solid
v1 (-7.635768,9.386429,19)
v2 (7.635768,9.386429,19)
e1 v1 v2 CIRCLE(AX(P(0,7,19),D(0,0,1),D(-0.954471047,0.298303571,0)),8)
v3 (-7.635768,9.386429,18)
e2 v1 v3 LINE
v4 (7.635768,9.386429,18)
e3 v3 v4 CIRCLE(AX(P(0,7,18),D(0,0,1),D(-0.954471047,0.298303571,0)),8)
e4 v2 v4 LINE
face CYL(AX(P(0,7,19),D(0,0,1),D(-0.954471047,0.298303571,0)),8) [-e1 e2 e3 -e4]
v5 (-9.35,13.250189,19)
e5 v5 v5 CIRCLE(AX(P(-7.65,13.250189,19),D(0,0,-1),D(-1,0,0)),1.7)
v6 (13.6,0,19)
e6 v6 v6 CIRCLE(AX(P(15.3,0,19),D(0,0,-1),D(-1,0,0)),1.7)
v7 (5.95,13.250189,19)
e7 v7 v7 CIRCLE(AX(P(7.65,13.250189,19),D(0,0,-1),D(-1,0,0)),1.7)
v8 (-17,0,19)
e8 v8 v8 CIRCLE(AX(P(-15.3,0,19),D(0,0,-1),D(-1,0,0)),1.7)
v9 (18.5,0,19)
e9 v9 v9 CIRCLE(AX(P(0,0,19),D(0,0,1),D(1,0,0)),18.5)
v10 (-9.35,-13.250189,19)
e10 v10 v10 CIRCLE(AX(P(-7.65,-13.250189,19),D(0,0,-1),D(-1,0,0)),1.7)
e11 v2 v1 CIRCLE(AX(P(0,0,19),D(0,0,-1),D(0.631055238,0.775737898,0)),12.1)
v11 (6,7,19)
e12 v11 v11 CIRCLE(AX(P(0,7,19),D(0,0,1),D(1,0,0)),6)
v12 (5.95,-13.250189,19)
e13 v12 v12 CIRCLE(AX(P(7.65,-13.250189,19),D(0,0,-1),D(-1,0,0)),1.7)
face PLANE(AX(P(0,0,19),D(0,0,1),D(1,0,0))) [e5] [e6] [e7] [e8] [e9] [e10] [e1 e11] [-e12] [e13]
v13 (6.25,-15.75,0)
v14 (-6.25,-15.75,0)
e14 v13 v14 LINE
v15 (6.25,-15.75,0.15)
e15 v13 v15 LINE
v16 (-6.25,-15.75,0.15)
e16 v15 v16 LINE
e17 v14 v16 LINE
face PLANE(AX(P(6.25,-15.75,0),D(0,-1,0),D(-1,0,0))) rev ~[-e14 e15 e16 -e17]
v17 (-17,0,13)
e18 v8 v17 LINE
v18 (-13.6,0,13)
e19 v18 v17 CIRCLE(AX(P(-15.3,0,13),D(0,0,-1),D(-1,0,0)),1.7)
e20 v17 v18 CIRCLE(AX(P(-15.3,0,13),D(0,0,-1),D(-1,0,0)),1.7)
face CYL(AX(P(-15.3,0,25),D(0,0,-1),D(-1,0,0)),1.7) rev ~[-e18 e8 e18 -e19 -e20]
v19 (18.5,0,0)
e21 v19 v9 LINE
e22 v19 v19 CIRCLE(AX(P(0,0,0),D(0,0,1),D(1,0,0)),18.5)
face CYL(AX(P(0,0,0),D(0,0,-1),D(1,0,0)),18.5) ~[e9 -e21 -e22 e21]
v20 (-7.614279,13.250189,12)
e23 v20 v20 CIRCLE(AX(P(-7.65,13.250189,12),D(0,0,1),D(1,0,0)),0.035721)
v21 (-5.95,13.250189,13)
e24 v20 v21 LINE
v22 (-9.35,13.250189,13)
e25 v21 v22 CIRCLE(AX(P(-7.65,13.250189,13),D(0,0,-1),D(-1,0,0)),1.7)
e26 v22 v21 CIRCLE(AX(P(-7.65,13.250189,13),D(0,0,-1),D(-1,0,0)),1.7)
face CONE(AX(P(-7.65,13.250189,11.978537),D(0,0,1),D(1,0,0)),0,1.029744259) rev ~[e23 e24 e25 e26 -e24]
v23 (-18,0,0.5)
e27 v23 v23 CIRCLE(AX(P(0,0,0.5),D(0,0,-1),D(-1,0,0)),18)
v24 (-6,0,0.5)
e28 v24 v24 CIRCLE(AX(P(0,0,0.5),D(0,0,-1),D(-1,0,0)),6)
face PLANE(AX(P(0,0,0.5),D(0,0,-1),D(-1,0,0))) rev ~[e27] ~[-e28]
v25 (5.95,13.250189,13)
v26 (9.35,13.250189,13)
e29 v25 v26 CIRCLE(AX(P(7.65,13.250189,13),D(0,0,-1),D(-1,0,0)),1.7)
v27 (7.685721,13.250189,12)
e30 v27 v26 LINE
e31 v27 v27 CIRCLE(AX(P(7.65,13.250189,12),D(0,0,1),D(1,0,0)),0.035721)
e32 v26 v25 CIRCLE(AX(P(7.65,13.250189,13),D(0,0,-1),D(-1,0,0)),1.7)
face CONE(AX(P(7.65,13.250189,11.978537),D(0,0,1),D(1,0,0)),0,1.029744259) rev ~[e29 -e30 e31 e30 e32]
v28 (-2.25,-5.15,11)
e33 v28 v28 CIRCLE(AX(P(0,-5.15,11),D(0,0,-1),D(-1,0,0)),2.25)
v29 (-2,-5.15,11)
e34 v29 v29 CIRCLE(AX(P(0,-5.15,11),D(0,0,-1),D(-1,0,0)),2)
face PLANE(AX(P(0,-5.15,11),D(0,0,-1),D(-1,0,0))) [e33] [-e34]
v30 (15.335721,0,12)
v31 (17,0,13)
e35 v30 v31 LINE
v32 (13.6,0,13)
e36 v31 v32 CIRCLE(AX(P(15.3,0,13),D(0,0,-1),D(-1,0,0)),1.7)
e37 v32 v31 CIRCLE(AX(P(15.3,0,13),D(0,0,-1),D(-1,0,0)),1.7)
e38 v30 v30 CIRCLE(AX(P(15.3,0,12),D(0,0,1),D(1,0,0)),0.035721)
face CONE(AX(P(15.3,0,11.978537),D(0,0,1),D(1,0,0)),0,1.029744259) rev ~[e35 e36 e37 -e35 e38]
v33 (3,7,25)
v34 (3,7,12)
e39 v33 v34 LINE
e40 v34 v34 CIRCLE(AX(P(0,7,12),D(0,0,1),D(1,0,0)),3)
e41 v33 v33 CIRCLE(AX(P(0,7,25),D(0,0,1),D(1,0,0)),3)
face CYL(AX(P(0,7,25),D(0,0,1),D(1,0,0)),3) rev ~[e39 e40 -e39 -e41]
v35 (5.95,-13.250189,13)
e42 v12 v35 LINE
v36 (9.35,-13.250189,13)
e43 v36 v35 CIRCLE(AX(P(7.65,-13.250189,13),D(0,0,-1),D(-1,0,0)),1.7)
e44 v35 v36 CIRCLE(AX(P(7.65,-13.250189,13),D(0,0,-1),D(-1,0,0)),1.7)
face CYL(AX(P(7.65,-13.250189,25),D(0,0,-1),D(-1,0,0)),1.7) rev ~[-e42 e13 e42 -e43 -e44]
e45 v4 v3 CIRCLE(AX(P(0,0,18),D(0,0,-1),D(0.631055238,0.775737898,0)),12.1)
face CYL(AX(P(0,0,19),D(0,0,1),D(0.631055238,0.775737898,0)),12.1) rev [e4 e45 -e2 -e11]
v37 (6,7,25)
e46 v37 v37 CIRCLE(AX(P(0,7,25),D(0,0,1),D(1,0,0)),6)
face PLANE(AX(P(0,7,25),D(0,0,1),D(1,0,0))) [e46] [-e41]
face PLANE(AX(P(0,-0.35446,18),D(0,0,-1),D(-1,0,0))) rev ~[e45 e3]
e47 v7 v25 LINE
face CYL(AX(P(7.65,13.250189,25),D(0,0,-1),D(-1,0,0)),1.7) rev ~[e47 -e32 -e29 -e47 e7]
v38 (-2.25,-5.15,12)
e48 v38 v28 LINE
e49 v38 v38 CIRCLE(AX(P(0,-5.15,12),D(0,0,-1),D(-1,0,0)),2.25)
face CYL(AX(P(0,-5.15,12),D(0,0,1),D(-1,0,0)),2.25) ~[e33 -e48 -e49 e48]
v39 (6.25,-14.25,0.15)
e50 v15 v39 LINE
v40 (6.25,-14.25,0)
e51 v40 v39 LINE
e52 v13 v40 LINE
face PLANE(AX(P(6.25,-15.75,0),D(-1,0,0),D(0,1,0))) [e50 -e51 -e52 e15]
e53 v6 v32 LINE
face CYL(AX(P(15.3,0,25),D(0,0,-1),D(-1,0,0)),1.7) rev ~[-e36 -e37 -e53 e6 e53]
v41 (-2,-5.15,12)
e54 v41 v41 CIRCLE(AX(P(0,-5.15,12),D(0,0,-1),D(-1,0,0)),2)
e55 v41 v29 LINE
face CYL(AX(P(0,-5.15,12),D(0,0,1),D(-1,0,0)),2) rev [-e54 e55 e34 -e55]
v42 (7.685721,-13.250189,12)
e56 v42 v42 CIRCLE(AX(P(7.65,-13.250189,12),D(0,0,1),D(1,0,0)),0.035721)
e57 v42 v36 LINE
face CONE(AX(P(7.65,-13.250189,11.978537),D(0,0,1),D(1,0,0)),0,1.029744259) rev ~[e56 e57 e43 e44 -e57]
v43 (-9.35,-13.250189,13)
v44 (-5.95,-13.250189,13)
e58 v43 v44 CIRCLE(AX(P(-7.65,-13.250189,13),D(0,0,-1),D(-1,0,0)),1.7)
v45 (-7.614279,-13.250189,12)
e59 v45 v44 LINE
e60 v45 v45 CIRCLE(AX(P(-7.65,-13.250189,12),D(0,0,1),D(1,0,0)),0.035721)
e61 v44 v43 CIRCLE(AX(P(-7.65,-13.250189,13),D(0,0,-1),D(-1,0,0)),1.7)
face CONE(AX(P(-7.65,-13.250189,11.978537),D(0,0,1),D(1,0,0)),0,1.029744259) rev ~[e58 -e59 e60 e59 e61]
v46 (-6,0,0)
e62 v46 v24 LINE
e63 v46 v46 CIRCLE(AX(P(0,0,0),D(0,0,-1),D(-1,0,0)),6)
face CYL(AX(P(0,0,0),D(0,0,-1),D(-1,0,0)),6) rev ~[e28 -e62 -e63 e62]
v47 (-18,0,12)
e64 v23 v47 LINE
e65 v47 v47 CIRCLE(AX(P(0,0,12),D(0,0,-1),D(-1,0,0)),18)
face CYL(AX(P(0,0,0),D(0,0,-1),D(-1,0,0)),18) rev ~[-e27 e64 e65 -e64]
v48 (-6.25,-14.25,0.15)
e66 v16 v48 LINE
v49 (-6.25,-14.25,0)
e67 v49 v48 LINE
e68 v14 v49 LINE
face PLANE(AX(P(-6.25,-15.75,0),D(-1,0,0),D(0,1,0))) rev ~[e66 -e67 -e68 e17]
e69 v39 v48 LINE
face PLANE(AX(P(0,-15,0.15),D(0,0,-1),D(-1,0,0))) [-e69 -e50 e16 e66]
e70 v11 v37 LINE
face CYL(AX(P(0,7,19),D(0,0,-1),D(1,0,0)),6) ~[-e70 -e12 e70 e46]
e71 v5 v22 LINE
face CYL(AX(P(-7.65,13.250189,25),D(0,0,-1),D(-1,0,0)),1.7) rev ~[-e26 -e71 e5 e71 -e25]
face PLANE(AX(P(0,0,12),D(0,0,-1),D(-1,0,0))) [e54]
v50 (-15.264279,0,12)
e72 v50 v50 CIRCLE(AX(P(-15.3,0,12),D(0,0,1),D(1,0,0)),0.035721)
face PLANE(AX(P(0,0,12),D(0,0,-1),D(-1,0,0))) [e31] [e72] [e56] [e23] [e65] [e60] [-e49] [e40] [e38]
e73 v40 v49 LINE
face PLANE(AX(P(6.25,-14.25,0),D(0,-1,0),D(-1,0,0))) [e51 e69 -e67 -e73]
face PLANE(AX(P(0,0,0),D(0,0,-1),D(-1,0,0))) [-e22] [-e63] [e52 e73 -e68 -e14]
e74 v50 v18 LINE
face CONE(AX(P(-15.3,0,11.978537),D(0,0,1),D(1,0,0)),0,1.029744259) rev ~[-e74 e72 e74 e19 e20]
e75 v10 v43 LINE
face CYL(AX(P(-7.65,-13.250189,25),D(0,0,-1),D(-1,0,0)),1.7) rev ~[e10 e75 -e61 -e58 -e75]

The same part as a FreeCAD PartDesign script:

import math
import FreeCAD as App
import Part
import Sketcher
from FreeCAD import Vector


def add_polygon(sketch, points):
    """Adds a closed chain of lines whose ends are joined by coincident constraints."""
    first, n = sketch.GeometryCount, len(points)
    for a, b in zip(points, points[1:] + points[:1]):
        sketch.addGeometry(Part.LineSegment(App.Vector(*a, 0), App.Vector(*b, 0)), False)
    for i in range(n):
        sketch.addConstraint(Sketcher.Constraint("Coincident", first + i, 2, first + (i + 1) % n, 1))

doc = App.newDocument("Part")
params = doc.addObject("Spreadsheet::Sheet", "Params")
for row, (alias, value) in enumerate([
    ("sketch1_diameter", "37 mm"),
    ("pad1_length", "19 mm"),
    ("sketch2_diameter", "12 mm"),
    ("pad2_length", "6 mm"),
    ("sketch3_radius", "8 mm"),
    ("sketch3_radius2", "12.1 mm"),
    ("pocket1_length", "1 mm"),
    ("sketch4_diameter", "3.4 mm"),
    ("hole_diameter", "3.4 mm"),
    ("hole_depth", "6 mm"),
    ("sketch5_diameter", "36 mm"),
    ("pocket2_length", "12 mm"),
    ("sketch6_diameter", "6 mm"),
    ("sketch7_diameter", "36 mm"),
    ("pad3_length", "0.5 mm"),
    ("sketch8_diameter", "4 mm"),
    ("pocket4_length", "10 mm"),
    ("sketch9_width", "12.5 mm"),
    ("sketch9_height", "1.5 mm"),
    ("pocket5_length", "0.15 mm"),
    ("sketch10_diameter", "12 mm"),
    ("pocket6_length", "10 mm"),
    ("sketch11_diameter", "4 mm"),
    ("sketch11_diameter2", "4.5 mm"),
    ("pad4_length", "1 mm"),
], start=1):
    params.set(f"A{row}", alias)
    params.set(f"B{row}", "=" + value)
    params.setAlias(f"B{row}", alias)

body = doc.addObject("PartDesign::Body", "Body")

sketch1 = body.newObject("Sketcher::SketchObject", "Sketch")
sketch1.AttachmentSupport = (doc.getObject("XY_Plane"), [""])
sketch1.MapMode = "FlatFace"
sketch1.addGeometry(Part.Circle(Vector(0, 0, 0), Vector(0, 0, 1), 18), False)
sketch1.addConstraint(Sketcher.Constraint("Coincident", 0, 3, -1, 1))
sketch1.addConstraint(Sketcher.Constraint("Diameter", 0, 37.0))
sketch1.setExpression("Constraints[1]", "Params.sketch1_diameter")
pad1 = body.newObject("PartDesign::Pad", "Pad")
pad1.Profile = sketch1
pad1.setExpression("Length", "Params.pad1_length")

sketch2 = body.newObject("Sketcher::SketchObject", "Sketch001")
sketch2.AttachmentSupport = (doc.getObject("XY_Plane"), [""])
sketch2.MapMode = "FlatFace"
sketch2.AttachmentOffset = App.Placement(Vector(0, 0, 19), App.Rotation())
sketch2.addGeometry(Part.Circle(Vector(0, 7, 0), Vector(0, 0, 1), 6), False)
sketch2.addConstraint(Sketcher.Constraint("PointOnObject", 0, 3, -2))
sketch2.addConstraint(Sketcher.Constraint("Diameter", 0, 12.0))
sketch2.addConstraint(Sketcher.Constraint("DistanceY", -1, 1, 0, 3, 7.0))
sketch2.setExpression("Constraints[1]", "Params.sketch2_diameter")
pad2 = body.newObject("PartDesign::Pad", "Pad001")
pad2.Profile = sketch2
pad2.setExpression("Length", "Params.pad2_length")

sketch3 = body.newObject("Sketcher::SketchObject", "Sketch002")
sketch3.AttachmentSupport = (doc.getObject("XY_Plane"), [""])
sketch3.MapMode = "FlatFace"
sketch3.AttachmentOffset = App.Placement(Vector(0, 0, 19), App.Rotation())
sketch3.addGeometry(Part.ArcOfCircle(Part.Circle(Vector(0, 0, 0), Vector(0, 0, 1), 12), math.radians(129), math.radians(411)), False)
sketch3.addGeometry(Part.ArcOfCircle(Part.Circle(Vector(0, 7, 0), Vector(0, 0, 1), 8), math.radians(163), math.radians(377)), False)
sketch3.addConstraint(Sketcher.Constraint("Coincident", 0, 1, 1, 1))
sketch3.addConstraint(Sketcher.Constraint("Coincident", 1, 2, 0, 2))
sketch3.addConstraint(Sketcher.Constraint("Coincident", 0, 3, -1, 1))
sketch3.addConstraint(Sketcher.Constraint("PointOnObject", 1, 3, -2))
sketch3.addConstraint(Sketcher.Constraint("Radius", 1, 8.0))
sketch3.addConstraint(Sketcher.Constraint("Radius", 0, 12.1))
sketch3.addConstraint(Sketcher.Constraint("DistanceY", -1, 1, 1, 3, 7.0))
sketch3.setExpression("Constraints[4]", "Params.sketch3_radius")
sketch3.setExpression("Constraints[5]", "Params.sketch3_radius2")
pocket1 = body.newObject("PartDesign::Pocket", "Pocket")
pocket1.Profile = sketch3
pocket1.setExpression("Length", "Params.pocket1_length")

sketch4 = body.newObject("Sketcher::SketchObject", "Sketch003")
sketch4.AttachmentSupport = (doc.getObject("XY_Plane"), [""])
sketch4.MapMode = "FlatFace"
sketch4.AttachmentOffset = App.Placement(Vector(0, 0, 19), App.Rotation())
sketch4.addGeometry(Part.Circle(Vector(7.7, -13.3, 0), Vector(0, 0, 1), 1.7), False)
sketch4.addGeometry(Part.Circle(Vector(-7.7, -13.3, 0), Vector(0, 0, 1), 1.7), False)
sketch4.addGeometry(Part.Circle(Vector(-15.3, 0, 0), Vector(0, 0, 1), 1.7), False)
sketch4.addGeometry(Part.Circle(Vector(-7.7, 13.3, 0), Vector(0, 0, 1), 1.7), False)
sketch4.addGeometry(Part.Circle(Vector(15.3, 0, 0), Vector(0, 0, 1), 1.7), False)
sketch4.addGeometry(Part.Circle(Vector(7.7, 13.3, 0), Vector(0, 0, 1), 1.7), False)
sketch4.addConstraint(Sketcher.Constraint("Equal", 0, 1))
sketch4.addConstraint(Sketcher.Constraint("Equal", 1, 2))
sketch4.addConstraint(Sketcher.Constraint("Equal", 2, 3))
sketch4.addConstraint(Sketcher.Constraint("Equal", 3, 4))
sketch4.addConstraint(Sketcher.Constraint("Equal", 4, 5))
sketch4.addConstraint(Sketcher.Constraint("Symmetric", 0, 3, 3, 3, -1, 1))
sketch4.addConstraint(Sketcher.Constraint("Symmetric", 2, 3, 4, 3, -1, 1))
sketch4.addConstraint(Sketcher.Constraint("Symmetric", 1, 3, 5, 3, -1, 1))
sketch4.addConstraint(Sketcher.Constraint("Symmetric", 0, 3, 1, 3, -2))
sketch4.addConstraint(Sketcher.Constraint("PointOnObject", 2, 3, -1))
sketch4.addConstraint(Sketcher.Constraint("Diameter", 0, 3.4))
sketch4.addConstraint(Sketcher.Constraint("DistanceX", 2, 3, -1, 1, 15.3))
sketch4.addConstraint(Sketcher.Constraint("DistanceX", 1, 3, 0, 3, 15.3))
sketch4.addConstraint(Sketcher.Constraint("DistanceY", 0, 3, -1, 1, 13.250189))
sketch4.setExpression("Constraints[10]", "Params.sketch4_diameter")
doc.recompute()
hole = body.newObject("PartDesign::Hole", "Hole")
hole.Profile = sketch4
hole.ThreadType = "None"
hole.setExpression("Diameter", "Params.hole_diameter")
hole.DepthType = "Dimension"
hole.setExpression("Depth", "Params.hole_depth")
hole.DrillPoint = "Angled"
hole.DrillPointAngle = 118

sketch5 = body.newObject("Sketcher::SketchObject", "Sketch004")
sketch5.AttachmentSupport = (doc.getObject("XY_Plane"), [""])
sketch5.MapMode = "FlatFace"
sketch5.addGeometry(Part.Circle(Vector(0, 0, 0), Vector(0, 0, 1), 18), False)
sketch5.addConstraint(Sketcher.Constraint("Coincident", 0, 3, -1, 1))
sketch5.addConstraint(Sketcher.Constraint("Diameter", 0, 36.0))
sketch5.setExpression("Constraints[1]", "Params.sketch5_diameter")
pocket2 = body.newObject("PartDesign::Pocket", "Pocket001")
pocket2.Profile = sketch5
pocket2.setExpression("Length", "Params.pocket2_length")
pocket2.Reversed = True

sketch6 = body.newObject("Sketcher::SketchObject", "Sketch005")
sketch6.AttachmentSupport = (doc.getObject("XY_Plane"), [""])
sketch6.MapMode = "FlatFace"
sketch6.AttachmentOffset = App.Placement(Vector(0, 0, 25), App.Rotation())
sketch6.addGeometry(Part.Circle(Vector(0, 7, 0), Vector(0, 0, 1), 3), False)
sketch6.addConstraint(Sketcher.Constraint("PointOnObject", 0, 3, -2))
sketch6.addConstraint(Sketcher.Constraint("Diameter", 0, 6.0))
sketch6.addConstraint(Sketcher.Constraint("DistanceY", -1, 1, 0, 3, 7.0))
sketch6.setExpression("Constraints[1]", "Params.sketch6_diameter")
pocket3 = body.newObject("PartDesign::Pocket", "Pocket002")
pocket3.Profile = sketch6
pocket3.Type = "UpToFirst"

sketch7 = body.newObject("Sketcher::SketchObject", "Sketch006")
sketch7.AttachmentSupport = (doc.getObject("XY_Plane"), [""])
sketch7.MapMode = "FlatFace"
sketch7.addGeometry(Part.Circle(Vector(0, 0, 0), Vector(0, 0, 1), 18), False)
sketch7.addConstraint(Sketcher.Constraint("Coincident", 0, 3, -1, 1))
sketch7.addConstraint(Sketcher.Constraint("Diameter", 0, 36.0))
sketch7.setExpression("Constraints[1]", "Params.sketch7_diameter")
pad3 = body.newObject("PartDesign::Pad", "Pad002")
pad3.Profile = sketch7
pad3.setExpression("Length", "Params.pad3_length")

sketch8 = body.newObject("Sketcher::SketchObject", "Sketch007")
sketch8.AttachmentSupport = (doc.getObject("XY_Plane"), [""])
sketch8.MapMode = "FlatFace"
sketch8.addGeometry(Part.Circle(Vector(0, 0, 0), Vector(0, 0, 1), 2), False)
sketch8.addConstraint(Sketcher.Constraint("Coincident", 0, 3, -1, 1))
sketch8.addConstraint(Sketcher.Constraint("Diameter", 0, 4.0))
sketch8.setExpression("Constraints[1]", "Params.sketch8_diameter")
pocket4 = body.newObject("PartDesign::Pocket", "Pocket003")
pocket4.Profile = sketch8
pocket4.setExpression("Length", "Params.pocket4_length")
pocket4.Reversed = True

sketch9 = body.newObject("Sketcher::SketchObject", "Sketch008")
sketch9.AttachmentSupport = (doc.getObject("XY_Plane"), [""])
sketch9.MapMode = "FlatFace"
add_polygon(sketch9, [(6.2, -14.2), (6.2, -15.8), (-6.2, -15.8), (-6.2, -14.2)])
sketch9.addConstraint(Sketcher.Constraint("Vertical", 0))
sketch9.addConstraint(Sketcher.Constraint("Horizontal", 1))
sketch9.addConstraint(Sketcher.Constraint("Vertical", 2))
sketch9.addConstraint(Sketcher.Constraint("Horizontal", 3))
sketch9.addConstraint(Sketcher.Constraint("DistanceX", 1, 2, 1, 1, 12.5))
sketch9.addConstraint(Sketcher.Constraint("DistanceY", 0, 2, 0, 1, 1.5))
sketch9.addConstraint(Sketcher.Constraint("DistanceX", -1, 1, 0, 2, 6.25))
sketch9.addConstraint(Sketcher.Constraint("DistanceY", 0, 2, -1, 1, 15.75))
sketch9.setExpression("Constraints[8]", "Params.sketch9_width")
sketch9.setExpression("Constraints[9]", "Params.sketch9_height")
pocket5 = body.newObject("PartDesign::Pocket", "Pocket004")
pocket5.Profile = sketch9
pocket5.setExpression("Length", "Params.pocket5_length")
pocket5.Reversed = True

sketch10 = body.newObject("Sketcher::SketchObject", "Sketch009")
sketch10.AttachmentSupport = (doc.getObject("XY_Plane"), [""])
sketch10.MapMode = "FlatFace"
sketch10.addGeometry(Part.Circle(Vector(0, 0, 0), Vector(0, 0, 1), 6), False)
sketch10.addConstraint(Sketcher.Constraint("Coincident", 0, 3, -1, 1))
sketch10.addConstraint(Sketcher.Constraint("Diameter", 0, 12.0))
sketch10.setExpression("Constraints[1]", "Params.sketch10_diameter")
pocket6 = body.newObject("PartDesign::Pocket", "Pocket005")
pocket6.Profile = sketch10
pocket6.setExpression("Length", "Params.pocket6_length")
pocket6.Reversed = True

sketch11 = body.newObject("Sketcher::SketchObject", "Sketch010")
sketch11.AttachmentSupport = (doc.getObject("XY_Plane"), [""])
sketch11.MapMode = "FlatFace"
sketch11.AttachmentOffset = App.Placement(Vector(0, 0, 12), App.Rotation())
sketch11.addGeometry(Part.Circle(Vector(0, -5.2, 0), Vector(0, 0, 1), 2.2), False)
sketch11.addGeometry(Part.Circle(Vector(0, -5.2, 0), Vector(0, 0, 1), 2), False)
sketch11.addConstraint(Sketcher.Constraint("Coincident", 1, 3, 0, 3))
sketch11.addConstraint(Sketcher.Constraint("PointOnObject", 0, 3, -2))
sketch11.addConstraint(Sketcher.Constraint("Diameter", 1, 4.0))
sketch11.addConstraint(Sketcher.Constraint("Diameter", 0, 4.5))
sketch11.addConstraint(Sketcher.Constraint("DistanceY", 0, 3, -1, 1, 5.15))
sketch11.setExpression("Constraints[2]", "Params.sketch11_diameter")
sketch11.setExpression("Constraints[3]", "Params.sketch11_diameter2")
pad4 = body.newObject("PartDesign::Pad", "Pad003")
pad4.Profile = sketch11
pad4.setExpression("Length", "Params.pad4_length")
pad4.Reversed = True

doc.recompute()
